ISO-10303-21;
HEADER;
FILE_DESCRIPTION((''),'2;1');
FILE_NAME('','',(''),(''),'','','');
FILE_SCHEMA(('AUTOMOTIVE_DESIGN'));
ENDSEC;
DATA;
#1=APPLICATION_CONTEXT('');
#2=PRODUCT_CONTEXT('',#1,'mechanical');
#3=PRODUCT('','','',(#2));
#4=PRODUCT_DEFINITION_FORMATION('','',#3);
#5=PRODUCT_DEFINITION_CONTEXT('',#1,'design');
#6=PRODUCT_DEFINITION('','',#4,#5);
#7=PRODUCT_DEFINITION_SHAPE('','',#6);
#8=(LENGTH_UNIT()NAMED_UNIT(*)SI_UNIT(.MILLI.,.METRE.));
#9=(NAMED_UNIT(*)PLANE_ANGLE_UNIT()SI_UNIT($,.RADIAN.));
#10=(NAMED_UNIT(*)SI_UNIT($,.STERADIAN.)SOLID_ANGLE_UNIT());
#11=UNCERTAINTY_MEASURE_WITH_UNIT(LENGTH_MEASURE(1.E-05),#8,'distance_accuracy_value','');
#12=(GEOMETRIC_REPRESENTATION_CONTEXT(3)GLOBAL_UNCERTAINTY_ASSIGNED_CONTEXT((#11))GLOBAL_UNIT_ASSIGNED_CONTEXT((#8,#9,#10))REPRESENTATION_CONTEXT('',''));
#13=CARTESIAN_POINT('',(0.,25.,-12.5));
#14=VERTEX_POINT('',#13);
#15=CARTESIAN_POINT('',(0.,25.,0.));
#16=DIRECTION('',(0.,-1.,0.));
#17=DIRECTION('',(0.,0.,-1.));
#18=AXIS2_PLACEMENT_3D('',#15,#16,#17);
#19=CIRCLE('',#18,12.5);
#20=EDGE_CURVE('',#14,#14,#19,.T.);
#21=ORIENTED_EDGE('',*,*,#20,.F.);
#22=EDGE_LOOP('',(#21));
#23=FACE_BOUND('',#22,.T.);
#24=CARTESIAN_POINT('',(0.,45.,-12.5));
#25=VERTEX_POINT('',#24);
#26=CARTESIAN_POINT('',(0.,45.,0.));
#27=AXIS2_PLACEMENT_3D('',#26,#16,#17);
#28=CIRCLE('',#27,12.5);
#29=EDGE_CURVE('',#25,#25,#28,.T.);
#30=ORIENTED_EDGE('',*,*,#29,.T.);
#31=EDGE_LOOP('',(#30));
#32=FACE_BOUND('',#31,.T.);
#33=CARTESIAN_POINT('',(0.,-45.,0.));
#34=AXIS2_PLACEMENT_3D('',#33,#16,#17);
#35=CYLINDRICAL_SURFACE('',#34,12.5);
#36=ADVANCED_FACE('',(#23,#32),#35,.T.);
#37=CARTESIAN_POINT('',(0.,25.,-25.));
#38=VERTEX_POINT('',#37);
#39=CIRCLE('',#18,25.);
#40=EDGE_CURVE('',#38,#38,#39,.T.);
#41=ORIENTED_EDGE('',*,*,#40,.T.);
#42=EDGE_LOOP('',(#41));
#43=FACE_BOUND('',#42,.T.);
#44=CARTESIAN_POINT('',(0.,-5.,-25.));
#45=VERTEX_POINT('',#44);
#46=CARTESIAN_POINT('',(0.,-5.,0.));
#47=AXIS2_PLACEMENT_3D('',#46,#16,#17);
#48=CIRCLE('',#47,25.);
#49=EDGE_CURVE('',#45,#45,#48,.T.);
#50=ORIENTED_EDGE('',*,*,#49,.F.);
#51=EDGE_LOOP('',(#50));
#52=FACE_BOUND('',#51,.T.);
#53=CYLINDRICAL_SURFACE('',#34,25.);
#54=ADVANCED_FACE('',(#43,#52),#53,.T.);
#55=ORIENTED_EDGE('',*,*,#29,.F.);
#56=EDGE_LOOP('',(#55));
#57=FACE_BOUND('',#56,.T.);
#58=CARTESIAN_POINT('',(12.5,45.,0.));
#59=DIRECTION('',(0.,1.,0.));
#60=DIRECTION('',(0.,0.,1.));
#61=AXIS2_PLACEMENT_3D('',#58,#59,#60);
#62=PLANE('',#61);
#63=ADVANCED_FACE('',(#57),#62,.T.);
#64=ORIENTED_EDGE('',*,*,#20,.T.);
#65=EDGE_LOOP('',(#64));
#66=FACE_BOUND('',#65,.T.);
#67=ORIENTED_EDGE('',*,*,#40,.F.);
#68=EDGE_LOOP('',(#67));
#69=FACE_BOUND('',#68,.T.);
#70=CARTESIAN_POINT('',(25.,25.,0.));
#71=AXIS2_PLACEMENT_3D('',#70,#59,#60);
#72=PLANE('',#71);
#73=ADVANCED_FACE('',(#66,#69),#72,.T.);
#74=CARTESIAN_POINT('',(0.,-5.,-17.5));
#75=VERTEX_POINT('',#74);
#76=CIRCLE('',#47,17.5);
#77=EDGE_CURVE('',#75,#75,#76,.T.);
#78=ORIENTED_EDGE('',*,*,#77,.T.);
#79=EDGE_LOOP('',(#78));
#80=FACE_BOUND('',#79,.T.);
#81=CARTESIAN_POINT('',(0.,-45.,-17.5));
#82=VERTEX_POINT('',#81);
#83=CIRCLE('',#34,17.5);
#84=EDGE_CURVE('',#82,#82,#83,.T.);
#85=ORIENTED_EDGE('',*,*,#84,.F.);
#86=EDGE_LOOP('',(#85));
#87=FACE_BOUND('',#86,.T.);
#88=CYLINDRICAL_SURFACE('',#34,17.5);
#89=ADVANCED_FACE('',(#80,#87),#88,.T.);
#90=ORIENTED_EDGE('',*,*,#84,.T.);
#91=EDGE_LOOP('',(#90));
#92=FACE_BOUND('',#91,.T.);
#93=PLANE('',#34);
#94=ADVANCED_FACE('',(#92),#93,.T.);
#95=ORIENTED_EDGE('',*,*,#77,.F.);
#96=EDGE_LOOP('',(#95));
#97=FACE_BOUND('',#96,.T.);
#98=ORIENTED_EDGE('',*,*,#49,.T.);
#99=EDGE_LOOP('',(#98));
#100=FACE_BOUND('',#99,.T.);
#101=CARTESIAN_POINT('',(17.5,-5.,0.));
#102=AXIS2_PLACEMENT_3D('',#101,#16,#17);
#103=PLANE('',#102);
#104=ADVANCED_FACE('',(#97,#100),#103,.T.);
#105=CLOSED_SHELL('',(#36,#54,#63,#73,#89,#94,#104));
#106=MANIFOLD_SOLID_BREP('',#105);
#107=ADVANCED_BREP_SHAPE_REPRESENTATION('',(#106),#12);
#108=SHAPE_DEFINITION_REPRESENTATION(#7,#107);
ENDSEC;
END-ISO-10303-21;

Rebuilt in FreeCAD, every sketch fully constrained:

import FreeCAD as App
import Part
import Sketcher

V = App.Vector
Q = App.Units.Quantity


def add_polygon(sketch, points):
    """Adds a closed chain of lines whose ends are joined by coincident constraints."""
    first, n = sketch.GeometryCount, len(points)
    for a, b in zip(points, points[1:] + points[:1]):
        sketch.addGeometry(Part.LineSegment(App.Vector(*a, 0), App.Vector(*b, 0)), False)
    for i in range(n):
        sketch.addConstraint(Sketcher.Constraint("Coincident", first + i, 2, first + (i + 1) % n, 1))

doc = App.newDocument("Part")
params = doc.addObject("Spreadsheet::Sheet", "Params")
for row, (alias, value) in enumerate([
    ("sketch1_height", "40 mm"),
    ("sketch1_height2", "30 mm"),
    ("sketch1_height3", "20 mm"),
    ("sketch1_width", "17.5 mm"),
    ("sketch1_width2", "7.5 mm"),
    ("revolution_angle", "360 deg"),
], start=1):
    params.set(f"A{row}", alias)
    params.set(f"B{row}", "=" + value)
    params.setAlias(f"B{row}", alias)

body = doc.addObject("PartDesign::Body", "Body")

# Sketch on XY plane
sketch1 = body.newObject("Sketcher::SketchObject", "Sketch")
sketch1.AttachmentSupport = (doc.getObject("XY_Plane"), [""])
sketch1.MapMode = "FlatFace"
add_polygon(sketch1, [(0, -45), (18, -45), (18, -5), (25, -5), (25, 25), (12, 25), (12, 45), (0, 45)])  # lines 0-7
sketch1.addConstraint([
    Sketcher.Constraint("Horizontal", 0),
    Sketcher.Constraint("Vertical", 1),
    Sketcher.Constraint("Horizontal", 2),
    Sketcher.Constraint("Vertical", 3),
    Sketcher.Constraint("Horizontal", 4),
    Sketcher.Constraint("Vertical", 5),
    Sketcher.Constraint("Horizontal", 6),
    Sketcher.Constraint("Vertical", 7),
    Sketcher.Constraint("Symmetric", 6, 2, 7, 2, -1, 1),
    Sketcher.Constraint("Equal", 4, 6),
    Sketcher.Constraint("DistanceY", 1, 1, 1, 2, Q("40 mm")),
    Sketcher.Constraint("DistanceY", 3, 1, 3, 2, Q("30 mm")),
    Sketcher.Constraint("DistanceY", 5, 1, 5, 2, Q("20 mm")),
    Sketcher.Constraint("DistanceX", 0, 1, 0, 2, Q("17.5 mm")),
    Sketcher.Constraint("DistanceX", 2, 1, 2, 2, Q("7.5 mm")),
])
sketch1.setExpression("Constraints[18]", "Params.sketch1_height")
sketch1.setExpression("Constraints[19]", "Params.sketch1_height2")
sketch1.setExpression("Constraints[20]", "Params.sketch1_height3")
sketch1.setExpression("Constraints[21]", "Params.sketch1_width")
sketch1.setExpression("Constraints[22]", "Params.sketch1_width2")
revolution = body.newObject("PartDesign::Revolution", "Revolution")
revolution.Profile = sketch1
revolution.ReferenceAxis = (sketch1, ["V_Axis"])
revolution.setExpression("Angle", "Params.revolution_angle")

doc.recompute()
